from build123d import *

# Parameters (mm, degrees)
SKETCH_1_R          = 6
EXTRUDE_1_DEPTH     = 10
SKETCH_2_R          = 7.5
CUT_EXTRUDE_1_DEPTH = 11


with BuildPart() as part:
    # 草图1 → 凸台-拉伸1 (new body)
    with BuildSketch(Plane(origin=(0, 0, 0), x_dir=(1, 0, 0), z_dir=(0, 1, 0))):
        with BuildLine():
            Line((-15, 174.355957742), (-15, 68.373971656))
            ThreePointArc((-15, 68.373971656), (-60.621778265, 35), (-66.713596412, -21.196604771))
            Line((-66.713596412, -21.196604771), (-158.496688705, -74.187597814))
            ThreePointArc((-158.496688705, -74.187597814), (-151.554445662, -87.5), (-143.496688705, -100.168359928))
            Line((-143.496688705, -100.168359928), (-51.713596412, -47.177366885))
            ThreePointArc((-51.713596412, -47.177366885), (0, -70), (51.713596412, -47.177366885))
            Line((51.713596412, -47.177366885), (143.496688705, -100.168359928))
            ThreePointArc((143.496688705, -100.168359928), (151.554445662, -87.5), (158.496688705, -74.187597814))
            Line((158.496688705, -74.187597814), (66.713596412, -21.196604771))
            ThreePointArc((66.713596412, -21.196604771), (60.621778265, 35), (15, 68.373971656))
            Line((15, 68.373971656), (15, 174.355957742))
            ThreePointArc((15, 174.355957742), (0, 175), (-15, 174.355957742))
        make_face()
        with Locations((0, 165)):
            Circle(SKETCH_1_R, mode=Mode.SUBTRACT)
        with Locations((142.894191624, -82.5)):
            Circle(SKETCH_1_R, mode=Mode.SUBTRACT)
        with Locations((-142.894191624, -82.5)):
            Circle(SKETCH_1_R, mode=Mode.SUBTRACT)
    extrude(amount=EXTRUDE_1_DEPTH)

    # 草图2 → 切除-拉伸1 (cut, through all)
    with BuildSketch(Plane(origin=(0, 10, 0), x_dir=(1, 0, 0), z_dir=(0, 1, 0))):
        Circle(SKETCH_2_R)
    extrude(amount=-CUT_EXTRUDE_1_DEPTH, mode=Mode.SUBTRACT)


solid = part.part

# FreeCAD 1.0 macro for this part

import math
import FreeCAD as App
import Part
import Sketcher
Q = App.Units.Quantity

doc = App.newDocument("Part")
body = doc.addObject("PartDesign::Body", "Body")

# Sketch on XZ plane
sketch1 = body.newObject("Sketcher::SketchObject", "Sketch")
sketch1.AttachmentSupport = (doc.getObject("XZ_Plane"), [""])
sketch1.MapMode = "FlatFace"
sketch1.addGeometry(Part.LineSegment(App.Vector(-15, -174.355958, 0), App.Vector(-15, -68.373972, 0)), False)
sketch1.addGeometry(Part.ArcOfCircle(Part.Circle(App.Vector(0, 0, 0), App.Vector(0, 0, 1), 70), math.radians(162.373625), math.radians(257.626375)), False)
sketch1.addGeometry(Part.LineSegment(App.Vector(-66.713596, 21.196605, 0), App.Vector(-158.496689, 74.187598, 0)), False)
sketch1.addGeometry(Part.ArcOfCircle(Part.Circle(App.Vector(0, 0, 0), App.Vector(0, 0, 1), 175), math.radians(145.0829), math.radians(154.9171)), False)
sketch1.addGeometry(Part.LineSegment(App.Vector(-143.496689, 100.16836, 0), App.Vector(-51.713596, 47.177367, 0)), False)
sketch1.addGeometry(Part.ArcOfCircle(Part.Circle(App.Vector(0, 0, 0), App.Vector(0, 0, 1), 70), math.radians(42.373625), math.radians(137.626375)), False)
sketch1.addGeometry(Part.LineSegment(App.Vector(51.713596, 47.177367, 0), App.Vector(143.496689, 100.16836, 0)), False)
sketch1.addGeometry(Part.ArcOfCircle(Part.Circle(App.Vector(0, 0, 0), App.Vector(0, 0, 1), 175), math.radians(25.0829), math.radians(34.9171)), False)
sketch1.addGeometry(Part.LineSegment(App.Vector(158.496689, 74.187598, 0), App.Vector(66.713596, 21.196605, 0)), False)
sketch1.addGeometry(Part.ArcOfCircle(Part.Circle(App.Vector(0, 0, 0), App.Vector(0, 0, 1), 70), math.radians(-77.626375), math.radians(17.626375)), False)
sketch1.addGeometry(Part.LineSegment(App.Vector(15, -68.373972, 0), App.Vector(15, -174.355958, 0)), False)
sketch1.addGeometry(Part.ArcOfCircle(Part.Circle(App.Vector(0, 0, 0), App.Vector(0, 0, 1), 175), math.radians(-94.9171), math.radians(-85.0829)), False)
sketch1.addGeometry(Part.Circle(App.Vector(-142.894192, 82.5, 0), App.Vector(0, 0, 1), 6), False)
sketch1.addGeometry(Part.Circle(App.Vector(142.894192, 82.5, 0), App.Vector(0, 0, 1), 6), False)
sketch1.addGeometry(Part.Circle(App.Vector(0, -165, 0), App.Vector(0, 0, 1), 6), False)
sketch1.addConstraint(Sketcher.Constraint("Coincident", 0, 2, 1, 2))
sketch1.addConstraint(Sketcher.Constraint("Coincident", 1, 1, 2, 1))
sketch1.addConstraint(Sketcher.Constraint("Coincident", 2, 2, 3, 2))
sketch1.addConstraint(Sketcher.Constraint("Coincident", 3, 1, 4, 1))
sketch1.addConstraint(Sketcher.Constraint("Coincident", 4, 2, 5, 2))
sketch1.addConstraint(Sketcher.Constraint("Coincident", 5, 1, 6, 1))
sketch1.addConstraint(Sketcher.Constraint("Coincident", 6, 2, 7, 2))
sketch1.addConstraint(Sketcher.Constraint("Coincident", 7, 1, 8, 1))
sketch1.addConstraint(Sketcher.Constraint("Coincident", 8, 2, 9, 2))
sketch1.addConstraint(Sketcher.Constraint("Coincident", 9, 1, 10, 1))
sketch1.addConstraint(Sketcher.Constraint("Coincident", 10, 2, 11, 2))
sketch1.addConstraint(Sketcher.Constraint("Coincident", 11, 1, 0, 1))
sketch1.addConstraint(Sketcher.Constraint("Vertical", 0))
sketch1.addConstraint(Sketcher.Constraint("Vertical", 10))
sketch1.addConstraint(Sketcher.Constraint("Coincident", 1, 3, -1, 1))
sketch1.addConstraint(Sketcher.Constraint("Coincident", 3, 3, -1, 1))
sketch1.addConstraint(Sketcher.Constraint("Coincident", 5, 3, -1, 1))
sketch1.addConstraint(Sketcher.Constraint("Coincident", 7, 3, -1, 1))
sketch1.addConstraint(Sketcher.Constraint("Coincident", 9, 3, -1, 1))
sketch1.addConstraint(Sketcher.Constraint("Coincident", 11, 3, -1, 1))
sketch1.addConstraint(Sketcher.Constraint("Equal", 1, 5))
sketch1.addConstraint(Sketcher.Constraint("Equal", 3, 7))
sketch1.addConstraint(Sketcher.Constraint("Equal", 5, 9))
sketch1.addConstraint(Sketcher.Constraint("Equal", 7, 11))
sketch1.addConstraint(Sketcher.Constraint("Equal", 12, 13))
sketch1.addConstraint(Sketcher.Constraint("Equal", 13, 14))
sketch1.addConstraint(Sketcher.Constraint("Symmetric", 12, 3, 13, 3, -2))
sketch1.addConstraint(Sketcher.Constraint("PointOnObject", 14, 3, -2))
sketch1.addConstraint(Sketcher.Constraint("Parallel", 2, 4))
sketch1.addConstraint(Sketcher.Constraint("Parallel", 6, 8))
sketch1.addConstraint(Sketcher.Constraint("Horizontal", 4, 2, 5, 1))
sketch1.addConstraint(Sketcher.Constraint("Horizontal", 3, 1, 6, 2))
sketch1.addConstraint(Sketcher.Constraint("Horizontal", 2, 2, 7, 1))
sketch1.addConstraint(Sketcher.Constraint("Horizontal", 0, 2, 9, 1))
sketch1.addConstraint(Sketcher.Constraint("Equal", 2, 4))
sketch1.addConstraint(Sketcher.Constraint("Diameter", 12, Q("12 mm")))
sketch1.addConstraint(Sketcher.Constraint("Radius", 1, Q("70 mm")))
sketch1.addConstraint(Sketcher.Constraint("Radius", 3, Q("175 mm")))
sketch1.addConstraint(Sketcher.Constraint("Angle", 2, Q("150 deg")))
sketch1.addConstraint(Sketcher.Constraint("DistanceY", 14, 3, -1, 1, Q("165 mm")))
sketch1.addConstraint(Sketcher.Constraint("DistanceX", 0, 2, -1, 1, Q("15 mm")))
sketch1.addConstraint(Sketcher.Constraint("DistanceX", 2, 2, 3, 1, Q("15 mm")))
sketch1.addConstraint(Sketcher.Constraint("DistanceY", -1, 1, 12, 3, Q("82.5 mm")))
sketch1.addConstraint(Sketcher.Constraint("DistanceX", 12, 3, -1, 1, Q("142.894192 mm")))
pad1 = body.newObject("PartDesign::Pad", "Pad")
pad1.Profile = sketch1
pad1.Length = 10
pad1.Reversed = True

# Sketch on XZ plane
sketch2 = body.newObject("Sketcher::SketchObject", "Sketch001")
sketch2.AttachmentSupport = (doc.getObject("XZ_Plane"), [""])
sketch2.MapMode = "FlatFace"
sketch2.AttachmentOffset = App.Placement(App.Vector(0, 0, -10), App.Rotation())
sketch2.addGeometry(Part.Circle(App.Vector(0, 0, 0), App.Vector(0, 0, 1), 7.5), False)
sketch2.addConstraint(Sketcher.Constraint("Coincident", 0, 3, -1, 1))
sketch2.addConstraint(Sketcher.Constraint("Diameter", 0, Q("15 mm")))
pocket1 = body.newObject("PartDesign::Pocket", "Pocket")
pocket1.Profile = sketch2
pocket1.Type = "ThroughAll"
pocket1.Reversed = True

doc.recompute()
